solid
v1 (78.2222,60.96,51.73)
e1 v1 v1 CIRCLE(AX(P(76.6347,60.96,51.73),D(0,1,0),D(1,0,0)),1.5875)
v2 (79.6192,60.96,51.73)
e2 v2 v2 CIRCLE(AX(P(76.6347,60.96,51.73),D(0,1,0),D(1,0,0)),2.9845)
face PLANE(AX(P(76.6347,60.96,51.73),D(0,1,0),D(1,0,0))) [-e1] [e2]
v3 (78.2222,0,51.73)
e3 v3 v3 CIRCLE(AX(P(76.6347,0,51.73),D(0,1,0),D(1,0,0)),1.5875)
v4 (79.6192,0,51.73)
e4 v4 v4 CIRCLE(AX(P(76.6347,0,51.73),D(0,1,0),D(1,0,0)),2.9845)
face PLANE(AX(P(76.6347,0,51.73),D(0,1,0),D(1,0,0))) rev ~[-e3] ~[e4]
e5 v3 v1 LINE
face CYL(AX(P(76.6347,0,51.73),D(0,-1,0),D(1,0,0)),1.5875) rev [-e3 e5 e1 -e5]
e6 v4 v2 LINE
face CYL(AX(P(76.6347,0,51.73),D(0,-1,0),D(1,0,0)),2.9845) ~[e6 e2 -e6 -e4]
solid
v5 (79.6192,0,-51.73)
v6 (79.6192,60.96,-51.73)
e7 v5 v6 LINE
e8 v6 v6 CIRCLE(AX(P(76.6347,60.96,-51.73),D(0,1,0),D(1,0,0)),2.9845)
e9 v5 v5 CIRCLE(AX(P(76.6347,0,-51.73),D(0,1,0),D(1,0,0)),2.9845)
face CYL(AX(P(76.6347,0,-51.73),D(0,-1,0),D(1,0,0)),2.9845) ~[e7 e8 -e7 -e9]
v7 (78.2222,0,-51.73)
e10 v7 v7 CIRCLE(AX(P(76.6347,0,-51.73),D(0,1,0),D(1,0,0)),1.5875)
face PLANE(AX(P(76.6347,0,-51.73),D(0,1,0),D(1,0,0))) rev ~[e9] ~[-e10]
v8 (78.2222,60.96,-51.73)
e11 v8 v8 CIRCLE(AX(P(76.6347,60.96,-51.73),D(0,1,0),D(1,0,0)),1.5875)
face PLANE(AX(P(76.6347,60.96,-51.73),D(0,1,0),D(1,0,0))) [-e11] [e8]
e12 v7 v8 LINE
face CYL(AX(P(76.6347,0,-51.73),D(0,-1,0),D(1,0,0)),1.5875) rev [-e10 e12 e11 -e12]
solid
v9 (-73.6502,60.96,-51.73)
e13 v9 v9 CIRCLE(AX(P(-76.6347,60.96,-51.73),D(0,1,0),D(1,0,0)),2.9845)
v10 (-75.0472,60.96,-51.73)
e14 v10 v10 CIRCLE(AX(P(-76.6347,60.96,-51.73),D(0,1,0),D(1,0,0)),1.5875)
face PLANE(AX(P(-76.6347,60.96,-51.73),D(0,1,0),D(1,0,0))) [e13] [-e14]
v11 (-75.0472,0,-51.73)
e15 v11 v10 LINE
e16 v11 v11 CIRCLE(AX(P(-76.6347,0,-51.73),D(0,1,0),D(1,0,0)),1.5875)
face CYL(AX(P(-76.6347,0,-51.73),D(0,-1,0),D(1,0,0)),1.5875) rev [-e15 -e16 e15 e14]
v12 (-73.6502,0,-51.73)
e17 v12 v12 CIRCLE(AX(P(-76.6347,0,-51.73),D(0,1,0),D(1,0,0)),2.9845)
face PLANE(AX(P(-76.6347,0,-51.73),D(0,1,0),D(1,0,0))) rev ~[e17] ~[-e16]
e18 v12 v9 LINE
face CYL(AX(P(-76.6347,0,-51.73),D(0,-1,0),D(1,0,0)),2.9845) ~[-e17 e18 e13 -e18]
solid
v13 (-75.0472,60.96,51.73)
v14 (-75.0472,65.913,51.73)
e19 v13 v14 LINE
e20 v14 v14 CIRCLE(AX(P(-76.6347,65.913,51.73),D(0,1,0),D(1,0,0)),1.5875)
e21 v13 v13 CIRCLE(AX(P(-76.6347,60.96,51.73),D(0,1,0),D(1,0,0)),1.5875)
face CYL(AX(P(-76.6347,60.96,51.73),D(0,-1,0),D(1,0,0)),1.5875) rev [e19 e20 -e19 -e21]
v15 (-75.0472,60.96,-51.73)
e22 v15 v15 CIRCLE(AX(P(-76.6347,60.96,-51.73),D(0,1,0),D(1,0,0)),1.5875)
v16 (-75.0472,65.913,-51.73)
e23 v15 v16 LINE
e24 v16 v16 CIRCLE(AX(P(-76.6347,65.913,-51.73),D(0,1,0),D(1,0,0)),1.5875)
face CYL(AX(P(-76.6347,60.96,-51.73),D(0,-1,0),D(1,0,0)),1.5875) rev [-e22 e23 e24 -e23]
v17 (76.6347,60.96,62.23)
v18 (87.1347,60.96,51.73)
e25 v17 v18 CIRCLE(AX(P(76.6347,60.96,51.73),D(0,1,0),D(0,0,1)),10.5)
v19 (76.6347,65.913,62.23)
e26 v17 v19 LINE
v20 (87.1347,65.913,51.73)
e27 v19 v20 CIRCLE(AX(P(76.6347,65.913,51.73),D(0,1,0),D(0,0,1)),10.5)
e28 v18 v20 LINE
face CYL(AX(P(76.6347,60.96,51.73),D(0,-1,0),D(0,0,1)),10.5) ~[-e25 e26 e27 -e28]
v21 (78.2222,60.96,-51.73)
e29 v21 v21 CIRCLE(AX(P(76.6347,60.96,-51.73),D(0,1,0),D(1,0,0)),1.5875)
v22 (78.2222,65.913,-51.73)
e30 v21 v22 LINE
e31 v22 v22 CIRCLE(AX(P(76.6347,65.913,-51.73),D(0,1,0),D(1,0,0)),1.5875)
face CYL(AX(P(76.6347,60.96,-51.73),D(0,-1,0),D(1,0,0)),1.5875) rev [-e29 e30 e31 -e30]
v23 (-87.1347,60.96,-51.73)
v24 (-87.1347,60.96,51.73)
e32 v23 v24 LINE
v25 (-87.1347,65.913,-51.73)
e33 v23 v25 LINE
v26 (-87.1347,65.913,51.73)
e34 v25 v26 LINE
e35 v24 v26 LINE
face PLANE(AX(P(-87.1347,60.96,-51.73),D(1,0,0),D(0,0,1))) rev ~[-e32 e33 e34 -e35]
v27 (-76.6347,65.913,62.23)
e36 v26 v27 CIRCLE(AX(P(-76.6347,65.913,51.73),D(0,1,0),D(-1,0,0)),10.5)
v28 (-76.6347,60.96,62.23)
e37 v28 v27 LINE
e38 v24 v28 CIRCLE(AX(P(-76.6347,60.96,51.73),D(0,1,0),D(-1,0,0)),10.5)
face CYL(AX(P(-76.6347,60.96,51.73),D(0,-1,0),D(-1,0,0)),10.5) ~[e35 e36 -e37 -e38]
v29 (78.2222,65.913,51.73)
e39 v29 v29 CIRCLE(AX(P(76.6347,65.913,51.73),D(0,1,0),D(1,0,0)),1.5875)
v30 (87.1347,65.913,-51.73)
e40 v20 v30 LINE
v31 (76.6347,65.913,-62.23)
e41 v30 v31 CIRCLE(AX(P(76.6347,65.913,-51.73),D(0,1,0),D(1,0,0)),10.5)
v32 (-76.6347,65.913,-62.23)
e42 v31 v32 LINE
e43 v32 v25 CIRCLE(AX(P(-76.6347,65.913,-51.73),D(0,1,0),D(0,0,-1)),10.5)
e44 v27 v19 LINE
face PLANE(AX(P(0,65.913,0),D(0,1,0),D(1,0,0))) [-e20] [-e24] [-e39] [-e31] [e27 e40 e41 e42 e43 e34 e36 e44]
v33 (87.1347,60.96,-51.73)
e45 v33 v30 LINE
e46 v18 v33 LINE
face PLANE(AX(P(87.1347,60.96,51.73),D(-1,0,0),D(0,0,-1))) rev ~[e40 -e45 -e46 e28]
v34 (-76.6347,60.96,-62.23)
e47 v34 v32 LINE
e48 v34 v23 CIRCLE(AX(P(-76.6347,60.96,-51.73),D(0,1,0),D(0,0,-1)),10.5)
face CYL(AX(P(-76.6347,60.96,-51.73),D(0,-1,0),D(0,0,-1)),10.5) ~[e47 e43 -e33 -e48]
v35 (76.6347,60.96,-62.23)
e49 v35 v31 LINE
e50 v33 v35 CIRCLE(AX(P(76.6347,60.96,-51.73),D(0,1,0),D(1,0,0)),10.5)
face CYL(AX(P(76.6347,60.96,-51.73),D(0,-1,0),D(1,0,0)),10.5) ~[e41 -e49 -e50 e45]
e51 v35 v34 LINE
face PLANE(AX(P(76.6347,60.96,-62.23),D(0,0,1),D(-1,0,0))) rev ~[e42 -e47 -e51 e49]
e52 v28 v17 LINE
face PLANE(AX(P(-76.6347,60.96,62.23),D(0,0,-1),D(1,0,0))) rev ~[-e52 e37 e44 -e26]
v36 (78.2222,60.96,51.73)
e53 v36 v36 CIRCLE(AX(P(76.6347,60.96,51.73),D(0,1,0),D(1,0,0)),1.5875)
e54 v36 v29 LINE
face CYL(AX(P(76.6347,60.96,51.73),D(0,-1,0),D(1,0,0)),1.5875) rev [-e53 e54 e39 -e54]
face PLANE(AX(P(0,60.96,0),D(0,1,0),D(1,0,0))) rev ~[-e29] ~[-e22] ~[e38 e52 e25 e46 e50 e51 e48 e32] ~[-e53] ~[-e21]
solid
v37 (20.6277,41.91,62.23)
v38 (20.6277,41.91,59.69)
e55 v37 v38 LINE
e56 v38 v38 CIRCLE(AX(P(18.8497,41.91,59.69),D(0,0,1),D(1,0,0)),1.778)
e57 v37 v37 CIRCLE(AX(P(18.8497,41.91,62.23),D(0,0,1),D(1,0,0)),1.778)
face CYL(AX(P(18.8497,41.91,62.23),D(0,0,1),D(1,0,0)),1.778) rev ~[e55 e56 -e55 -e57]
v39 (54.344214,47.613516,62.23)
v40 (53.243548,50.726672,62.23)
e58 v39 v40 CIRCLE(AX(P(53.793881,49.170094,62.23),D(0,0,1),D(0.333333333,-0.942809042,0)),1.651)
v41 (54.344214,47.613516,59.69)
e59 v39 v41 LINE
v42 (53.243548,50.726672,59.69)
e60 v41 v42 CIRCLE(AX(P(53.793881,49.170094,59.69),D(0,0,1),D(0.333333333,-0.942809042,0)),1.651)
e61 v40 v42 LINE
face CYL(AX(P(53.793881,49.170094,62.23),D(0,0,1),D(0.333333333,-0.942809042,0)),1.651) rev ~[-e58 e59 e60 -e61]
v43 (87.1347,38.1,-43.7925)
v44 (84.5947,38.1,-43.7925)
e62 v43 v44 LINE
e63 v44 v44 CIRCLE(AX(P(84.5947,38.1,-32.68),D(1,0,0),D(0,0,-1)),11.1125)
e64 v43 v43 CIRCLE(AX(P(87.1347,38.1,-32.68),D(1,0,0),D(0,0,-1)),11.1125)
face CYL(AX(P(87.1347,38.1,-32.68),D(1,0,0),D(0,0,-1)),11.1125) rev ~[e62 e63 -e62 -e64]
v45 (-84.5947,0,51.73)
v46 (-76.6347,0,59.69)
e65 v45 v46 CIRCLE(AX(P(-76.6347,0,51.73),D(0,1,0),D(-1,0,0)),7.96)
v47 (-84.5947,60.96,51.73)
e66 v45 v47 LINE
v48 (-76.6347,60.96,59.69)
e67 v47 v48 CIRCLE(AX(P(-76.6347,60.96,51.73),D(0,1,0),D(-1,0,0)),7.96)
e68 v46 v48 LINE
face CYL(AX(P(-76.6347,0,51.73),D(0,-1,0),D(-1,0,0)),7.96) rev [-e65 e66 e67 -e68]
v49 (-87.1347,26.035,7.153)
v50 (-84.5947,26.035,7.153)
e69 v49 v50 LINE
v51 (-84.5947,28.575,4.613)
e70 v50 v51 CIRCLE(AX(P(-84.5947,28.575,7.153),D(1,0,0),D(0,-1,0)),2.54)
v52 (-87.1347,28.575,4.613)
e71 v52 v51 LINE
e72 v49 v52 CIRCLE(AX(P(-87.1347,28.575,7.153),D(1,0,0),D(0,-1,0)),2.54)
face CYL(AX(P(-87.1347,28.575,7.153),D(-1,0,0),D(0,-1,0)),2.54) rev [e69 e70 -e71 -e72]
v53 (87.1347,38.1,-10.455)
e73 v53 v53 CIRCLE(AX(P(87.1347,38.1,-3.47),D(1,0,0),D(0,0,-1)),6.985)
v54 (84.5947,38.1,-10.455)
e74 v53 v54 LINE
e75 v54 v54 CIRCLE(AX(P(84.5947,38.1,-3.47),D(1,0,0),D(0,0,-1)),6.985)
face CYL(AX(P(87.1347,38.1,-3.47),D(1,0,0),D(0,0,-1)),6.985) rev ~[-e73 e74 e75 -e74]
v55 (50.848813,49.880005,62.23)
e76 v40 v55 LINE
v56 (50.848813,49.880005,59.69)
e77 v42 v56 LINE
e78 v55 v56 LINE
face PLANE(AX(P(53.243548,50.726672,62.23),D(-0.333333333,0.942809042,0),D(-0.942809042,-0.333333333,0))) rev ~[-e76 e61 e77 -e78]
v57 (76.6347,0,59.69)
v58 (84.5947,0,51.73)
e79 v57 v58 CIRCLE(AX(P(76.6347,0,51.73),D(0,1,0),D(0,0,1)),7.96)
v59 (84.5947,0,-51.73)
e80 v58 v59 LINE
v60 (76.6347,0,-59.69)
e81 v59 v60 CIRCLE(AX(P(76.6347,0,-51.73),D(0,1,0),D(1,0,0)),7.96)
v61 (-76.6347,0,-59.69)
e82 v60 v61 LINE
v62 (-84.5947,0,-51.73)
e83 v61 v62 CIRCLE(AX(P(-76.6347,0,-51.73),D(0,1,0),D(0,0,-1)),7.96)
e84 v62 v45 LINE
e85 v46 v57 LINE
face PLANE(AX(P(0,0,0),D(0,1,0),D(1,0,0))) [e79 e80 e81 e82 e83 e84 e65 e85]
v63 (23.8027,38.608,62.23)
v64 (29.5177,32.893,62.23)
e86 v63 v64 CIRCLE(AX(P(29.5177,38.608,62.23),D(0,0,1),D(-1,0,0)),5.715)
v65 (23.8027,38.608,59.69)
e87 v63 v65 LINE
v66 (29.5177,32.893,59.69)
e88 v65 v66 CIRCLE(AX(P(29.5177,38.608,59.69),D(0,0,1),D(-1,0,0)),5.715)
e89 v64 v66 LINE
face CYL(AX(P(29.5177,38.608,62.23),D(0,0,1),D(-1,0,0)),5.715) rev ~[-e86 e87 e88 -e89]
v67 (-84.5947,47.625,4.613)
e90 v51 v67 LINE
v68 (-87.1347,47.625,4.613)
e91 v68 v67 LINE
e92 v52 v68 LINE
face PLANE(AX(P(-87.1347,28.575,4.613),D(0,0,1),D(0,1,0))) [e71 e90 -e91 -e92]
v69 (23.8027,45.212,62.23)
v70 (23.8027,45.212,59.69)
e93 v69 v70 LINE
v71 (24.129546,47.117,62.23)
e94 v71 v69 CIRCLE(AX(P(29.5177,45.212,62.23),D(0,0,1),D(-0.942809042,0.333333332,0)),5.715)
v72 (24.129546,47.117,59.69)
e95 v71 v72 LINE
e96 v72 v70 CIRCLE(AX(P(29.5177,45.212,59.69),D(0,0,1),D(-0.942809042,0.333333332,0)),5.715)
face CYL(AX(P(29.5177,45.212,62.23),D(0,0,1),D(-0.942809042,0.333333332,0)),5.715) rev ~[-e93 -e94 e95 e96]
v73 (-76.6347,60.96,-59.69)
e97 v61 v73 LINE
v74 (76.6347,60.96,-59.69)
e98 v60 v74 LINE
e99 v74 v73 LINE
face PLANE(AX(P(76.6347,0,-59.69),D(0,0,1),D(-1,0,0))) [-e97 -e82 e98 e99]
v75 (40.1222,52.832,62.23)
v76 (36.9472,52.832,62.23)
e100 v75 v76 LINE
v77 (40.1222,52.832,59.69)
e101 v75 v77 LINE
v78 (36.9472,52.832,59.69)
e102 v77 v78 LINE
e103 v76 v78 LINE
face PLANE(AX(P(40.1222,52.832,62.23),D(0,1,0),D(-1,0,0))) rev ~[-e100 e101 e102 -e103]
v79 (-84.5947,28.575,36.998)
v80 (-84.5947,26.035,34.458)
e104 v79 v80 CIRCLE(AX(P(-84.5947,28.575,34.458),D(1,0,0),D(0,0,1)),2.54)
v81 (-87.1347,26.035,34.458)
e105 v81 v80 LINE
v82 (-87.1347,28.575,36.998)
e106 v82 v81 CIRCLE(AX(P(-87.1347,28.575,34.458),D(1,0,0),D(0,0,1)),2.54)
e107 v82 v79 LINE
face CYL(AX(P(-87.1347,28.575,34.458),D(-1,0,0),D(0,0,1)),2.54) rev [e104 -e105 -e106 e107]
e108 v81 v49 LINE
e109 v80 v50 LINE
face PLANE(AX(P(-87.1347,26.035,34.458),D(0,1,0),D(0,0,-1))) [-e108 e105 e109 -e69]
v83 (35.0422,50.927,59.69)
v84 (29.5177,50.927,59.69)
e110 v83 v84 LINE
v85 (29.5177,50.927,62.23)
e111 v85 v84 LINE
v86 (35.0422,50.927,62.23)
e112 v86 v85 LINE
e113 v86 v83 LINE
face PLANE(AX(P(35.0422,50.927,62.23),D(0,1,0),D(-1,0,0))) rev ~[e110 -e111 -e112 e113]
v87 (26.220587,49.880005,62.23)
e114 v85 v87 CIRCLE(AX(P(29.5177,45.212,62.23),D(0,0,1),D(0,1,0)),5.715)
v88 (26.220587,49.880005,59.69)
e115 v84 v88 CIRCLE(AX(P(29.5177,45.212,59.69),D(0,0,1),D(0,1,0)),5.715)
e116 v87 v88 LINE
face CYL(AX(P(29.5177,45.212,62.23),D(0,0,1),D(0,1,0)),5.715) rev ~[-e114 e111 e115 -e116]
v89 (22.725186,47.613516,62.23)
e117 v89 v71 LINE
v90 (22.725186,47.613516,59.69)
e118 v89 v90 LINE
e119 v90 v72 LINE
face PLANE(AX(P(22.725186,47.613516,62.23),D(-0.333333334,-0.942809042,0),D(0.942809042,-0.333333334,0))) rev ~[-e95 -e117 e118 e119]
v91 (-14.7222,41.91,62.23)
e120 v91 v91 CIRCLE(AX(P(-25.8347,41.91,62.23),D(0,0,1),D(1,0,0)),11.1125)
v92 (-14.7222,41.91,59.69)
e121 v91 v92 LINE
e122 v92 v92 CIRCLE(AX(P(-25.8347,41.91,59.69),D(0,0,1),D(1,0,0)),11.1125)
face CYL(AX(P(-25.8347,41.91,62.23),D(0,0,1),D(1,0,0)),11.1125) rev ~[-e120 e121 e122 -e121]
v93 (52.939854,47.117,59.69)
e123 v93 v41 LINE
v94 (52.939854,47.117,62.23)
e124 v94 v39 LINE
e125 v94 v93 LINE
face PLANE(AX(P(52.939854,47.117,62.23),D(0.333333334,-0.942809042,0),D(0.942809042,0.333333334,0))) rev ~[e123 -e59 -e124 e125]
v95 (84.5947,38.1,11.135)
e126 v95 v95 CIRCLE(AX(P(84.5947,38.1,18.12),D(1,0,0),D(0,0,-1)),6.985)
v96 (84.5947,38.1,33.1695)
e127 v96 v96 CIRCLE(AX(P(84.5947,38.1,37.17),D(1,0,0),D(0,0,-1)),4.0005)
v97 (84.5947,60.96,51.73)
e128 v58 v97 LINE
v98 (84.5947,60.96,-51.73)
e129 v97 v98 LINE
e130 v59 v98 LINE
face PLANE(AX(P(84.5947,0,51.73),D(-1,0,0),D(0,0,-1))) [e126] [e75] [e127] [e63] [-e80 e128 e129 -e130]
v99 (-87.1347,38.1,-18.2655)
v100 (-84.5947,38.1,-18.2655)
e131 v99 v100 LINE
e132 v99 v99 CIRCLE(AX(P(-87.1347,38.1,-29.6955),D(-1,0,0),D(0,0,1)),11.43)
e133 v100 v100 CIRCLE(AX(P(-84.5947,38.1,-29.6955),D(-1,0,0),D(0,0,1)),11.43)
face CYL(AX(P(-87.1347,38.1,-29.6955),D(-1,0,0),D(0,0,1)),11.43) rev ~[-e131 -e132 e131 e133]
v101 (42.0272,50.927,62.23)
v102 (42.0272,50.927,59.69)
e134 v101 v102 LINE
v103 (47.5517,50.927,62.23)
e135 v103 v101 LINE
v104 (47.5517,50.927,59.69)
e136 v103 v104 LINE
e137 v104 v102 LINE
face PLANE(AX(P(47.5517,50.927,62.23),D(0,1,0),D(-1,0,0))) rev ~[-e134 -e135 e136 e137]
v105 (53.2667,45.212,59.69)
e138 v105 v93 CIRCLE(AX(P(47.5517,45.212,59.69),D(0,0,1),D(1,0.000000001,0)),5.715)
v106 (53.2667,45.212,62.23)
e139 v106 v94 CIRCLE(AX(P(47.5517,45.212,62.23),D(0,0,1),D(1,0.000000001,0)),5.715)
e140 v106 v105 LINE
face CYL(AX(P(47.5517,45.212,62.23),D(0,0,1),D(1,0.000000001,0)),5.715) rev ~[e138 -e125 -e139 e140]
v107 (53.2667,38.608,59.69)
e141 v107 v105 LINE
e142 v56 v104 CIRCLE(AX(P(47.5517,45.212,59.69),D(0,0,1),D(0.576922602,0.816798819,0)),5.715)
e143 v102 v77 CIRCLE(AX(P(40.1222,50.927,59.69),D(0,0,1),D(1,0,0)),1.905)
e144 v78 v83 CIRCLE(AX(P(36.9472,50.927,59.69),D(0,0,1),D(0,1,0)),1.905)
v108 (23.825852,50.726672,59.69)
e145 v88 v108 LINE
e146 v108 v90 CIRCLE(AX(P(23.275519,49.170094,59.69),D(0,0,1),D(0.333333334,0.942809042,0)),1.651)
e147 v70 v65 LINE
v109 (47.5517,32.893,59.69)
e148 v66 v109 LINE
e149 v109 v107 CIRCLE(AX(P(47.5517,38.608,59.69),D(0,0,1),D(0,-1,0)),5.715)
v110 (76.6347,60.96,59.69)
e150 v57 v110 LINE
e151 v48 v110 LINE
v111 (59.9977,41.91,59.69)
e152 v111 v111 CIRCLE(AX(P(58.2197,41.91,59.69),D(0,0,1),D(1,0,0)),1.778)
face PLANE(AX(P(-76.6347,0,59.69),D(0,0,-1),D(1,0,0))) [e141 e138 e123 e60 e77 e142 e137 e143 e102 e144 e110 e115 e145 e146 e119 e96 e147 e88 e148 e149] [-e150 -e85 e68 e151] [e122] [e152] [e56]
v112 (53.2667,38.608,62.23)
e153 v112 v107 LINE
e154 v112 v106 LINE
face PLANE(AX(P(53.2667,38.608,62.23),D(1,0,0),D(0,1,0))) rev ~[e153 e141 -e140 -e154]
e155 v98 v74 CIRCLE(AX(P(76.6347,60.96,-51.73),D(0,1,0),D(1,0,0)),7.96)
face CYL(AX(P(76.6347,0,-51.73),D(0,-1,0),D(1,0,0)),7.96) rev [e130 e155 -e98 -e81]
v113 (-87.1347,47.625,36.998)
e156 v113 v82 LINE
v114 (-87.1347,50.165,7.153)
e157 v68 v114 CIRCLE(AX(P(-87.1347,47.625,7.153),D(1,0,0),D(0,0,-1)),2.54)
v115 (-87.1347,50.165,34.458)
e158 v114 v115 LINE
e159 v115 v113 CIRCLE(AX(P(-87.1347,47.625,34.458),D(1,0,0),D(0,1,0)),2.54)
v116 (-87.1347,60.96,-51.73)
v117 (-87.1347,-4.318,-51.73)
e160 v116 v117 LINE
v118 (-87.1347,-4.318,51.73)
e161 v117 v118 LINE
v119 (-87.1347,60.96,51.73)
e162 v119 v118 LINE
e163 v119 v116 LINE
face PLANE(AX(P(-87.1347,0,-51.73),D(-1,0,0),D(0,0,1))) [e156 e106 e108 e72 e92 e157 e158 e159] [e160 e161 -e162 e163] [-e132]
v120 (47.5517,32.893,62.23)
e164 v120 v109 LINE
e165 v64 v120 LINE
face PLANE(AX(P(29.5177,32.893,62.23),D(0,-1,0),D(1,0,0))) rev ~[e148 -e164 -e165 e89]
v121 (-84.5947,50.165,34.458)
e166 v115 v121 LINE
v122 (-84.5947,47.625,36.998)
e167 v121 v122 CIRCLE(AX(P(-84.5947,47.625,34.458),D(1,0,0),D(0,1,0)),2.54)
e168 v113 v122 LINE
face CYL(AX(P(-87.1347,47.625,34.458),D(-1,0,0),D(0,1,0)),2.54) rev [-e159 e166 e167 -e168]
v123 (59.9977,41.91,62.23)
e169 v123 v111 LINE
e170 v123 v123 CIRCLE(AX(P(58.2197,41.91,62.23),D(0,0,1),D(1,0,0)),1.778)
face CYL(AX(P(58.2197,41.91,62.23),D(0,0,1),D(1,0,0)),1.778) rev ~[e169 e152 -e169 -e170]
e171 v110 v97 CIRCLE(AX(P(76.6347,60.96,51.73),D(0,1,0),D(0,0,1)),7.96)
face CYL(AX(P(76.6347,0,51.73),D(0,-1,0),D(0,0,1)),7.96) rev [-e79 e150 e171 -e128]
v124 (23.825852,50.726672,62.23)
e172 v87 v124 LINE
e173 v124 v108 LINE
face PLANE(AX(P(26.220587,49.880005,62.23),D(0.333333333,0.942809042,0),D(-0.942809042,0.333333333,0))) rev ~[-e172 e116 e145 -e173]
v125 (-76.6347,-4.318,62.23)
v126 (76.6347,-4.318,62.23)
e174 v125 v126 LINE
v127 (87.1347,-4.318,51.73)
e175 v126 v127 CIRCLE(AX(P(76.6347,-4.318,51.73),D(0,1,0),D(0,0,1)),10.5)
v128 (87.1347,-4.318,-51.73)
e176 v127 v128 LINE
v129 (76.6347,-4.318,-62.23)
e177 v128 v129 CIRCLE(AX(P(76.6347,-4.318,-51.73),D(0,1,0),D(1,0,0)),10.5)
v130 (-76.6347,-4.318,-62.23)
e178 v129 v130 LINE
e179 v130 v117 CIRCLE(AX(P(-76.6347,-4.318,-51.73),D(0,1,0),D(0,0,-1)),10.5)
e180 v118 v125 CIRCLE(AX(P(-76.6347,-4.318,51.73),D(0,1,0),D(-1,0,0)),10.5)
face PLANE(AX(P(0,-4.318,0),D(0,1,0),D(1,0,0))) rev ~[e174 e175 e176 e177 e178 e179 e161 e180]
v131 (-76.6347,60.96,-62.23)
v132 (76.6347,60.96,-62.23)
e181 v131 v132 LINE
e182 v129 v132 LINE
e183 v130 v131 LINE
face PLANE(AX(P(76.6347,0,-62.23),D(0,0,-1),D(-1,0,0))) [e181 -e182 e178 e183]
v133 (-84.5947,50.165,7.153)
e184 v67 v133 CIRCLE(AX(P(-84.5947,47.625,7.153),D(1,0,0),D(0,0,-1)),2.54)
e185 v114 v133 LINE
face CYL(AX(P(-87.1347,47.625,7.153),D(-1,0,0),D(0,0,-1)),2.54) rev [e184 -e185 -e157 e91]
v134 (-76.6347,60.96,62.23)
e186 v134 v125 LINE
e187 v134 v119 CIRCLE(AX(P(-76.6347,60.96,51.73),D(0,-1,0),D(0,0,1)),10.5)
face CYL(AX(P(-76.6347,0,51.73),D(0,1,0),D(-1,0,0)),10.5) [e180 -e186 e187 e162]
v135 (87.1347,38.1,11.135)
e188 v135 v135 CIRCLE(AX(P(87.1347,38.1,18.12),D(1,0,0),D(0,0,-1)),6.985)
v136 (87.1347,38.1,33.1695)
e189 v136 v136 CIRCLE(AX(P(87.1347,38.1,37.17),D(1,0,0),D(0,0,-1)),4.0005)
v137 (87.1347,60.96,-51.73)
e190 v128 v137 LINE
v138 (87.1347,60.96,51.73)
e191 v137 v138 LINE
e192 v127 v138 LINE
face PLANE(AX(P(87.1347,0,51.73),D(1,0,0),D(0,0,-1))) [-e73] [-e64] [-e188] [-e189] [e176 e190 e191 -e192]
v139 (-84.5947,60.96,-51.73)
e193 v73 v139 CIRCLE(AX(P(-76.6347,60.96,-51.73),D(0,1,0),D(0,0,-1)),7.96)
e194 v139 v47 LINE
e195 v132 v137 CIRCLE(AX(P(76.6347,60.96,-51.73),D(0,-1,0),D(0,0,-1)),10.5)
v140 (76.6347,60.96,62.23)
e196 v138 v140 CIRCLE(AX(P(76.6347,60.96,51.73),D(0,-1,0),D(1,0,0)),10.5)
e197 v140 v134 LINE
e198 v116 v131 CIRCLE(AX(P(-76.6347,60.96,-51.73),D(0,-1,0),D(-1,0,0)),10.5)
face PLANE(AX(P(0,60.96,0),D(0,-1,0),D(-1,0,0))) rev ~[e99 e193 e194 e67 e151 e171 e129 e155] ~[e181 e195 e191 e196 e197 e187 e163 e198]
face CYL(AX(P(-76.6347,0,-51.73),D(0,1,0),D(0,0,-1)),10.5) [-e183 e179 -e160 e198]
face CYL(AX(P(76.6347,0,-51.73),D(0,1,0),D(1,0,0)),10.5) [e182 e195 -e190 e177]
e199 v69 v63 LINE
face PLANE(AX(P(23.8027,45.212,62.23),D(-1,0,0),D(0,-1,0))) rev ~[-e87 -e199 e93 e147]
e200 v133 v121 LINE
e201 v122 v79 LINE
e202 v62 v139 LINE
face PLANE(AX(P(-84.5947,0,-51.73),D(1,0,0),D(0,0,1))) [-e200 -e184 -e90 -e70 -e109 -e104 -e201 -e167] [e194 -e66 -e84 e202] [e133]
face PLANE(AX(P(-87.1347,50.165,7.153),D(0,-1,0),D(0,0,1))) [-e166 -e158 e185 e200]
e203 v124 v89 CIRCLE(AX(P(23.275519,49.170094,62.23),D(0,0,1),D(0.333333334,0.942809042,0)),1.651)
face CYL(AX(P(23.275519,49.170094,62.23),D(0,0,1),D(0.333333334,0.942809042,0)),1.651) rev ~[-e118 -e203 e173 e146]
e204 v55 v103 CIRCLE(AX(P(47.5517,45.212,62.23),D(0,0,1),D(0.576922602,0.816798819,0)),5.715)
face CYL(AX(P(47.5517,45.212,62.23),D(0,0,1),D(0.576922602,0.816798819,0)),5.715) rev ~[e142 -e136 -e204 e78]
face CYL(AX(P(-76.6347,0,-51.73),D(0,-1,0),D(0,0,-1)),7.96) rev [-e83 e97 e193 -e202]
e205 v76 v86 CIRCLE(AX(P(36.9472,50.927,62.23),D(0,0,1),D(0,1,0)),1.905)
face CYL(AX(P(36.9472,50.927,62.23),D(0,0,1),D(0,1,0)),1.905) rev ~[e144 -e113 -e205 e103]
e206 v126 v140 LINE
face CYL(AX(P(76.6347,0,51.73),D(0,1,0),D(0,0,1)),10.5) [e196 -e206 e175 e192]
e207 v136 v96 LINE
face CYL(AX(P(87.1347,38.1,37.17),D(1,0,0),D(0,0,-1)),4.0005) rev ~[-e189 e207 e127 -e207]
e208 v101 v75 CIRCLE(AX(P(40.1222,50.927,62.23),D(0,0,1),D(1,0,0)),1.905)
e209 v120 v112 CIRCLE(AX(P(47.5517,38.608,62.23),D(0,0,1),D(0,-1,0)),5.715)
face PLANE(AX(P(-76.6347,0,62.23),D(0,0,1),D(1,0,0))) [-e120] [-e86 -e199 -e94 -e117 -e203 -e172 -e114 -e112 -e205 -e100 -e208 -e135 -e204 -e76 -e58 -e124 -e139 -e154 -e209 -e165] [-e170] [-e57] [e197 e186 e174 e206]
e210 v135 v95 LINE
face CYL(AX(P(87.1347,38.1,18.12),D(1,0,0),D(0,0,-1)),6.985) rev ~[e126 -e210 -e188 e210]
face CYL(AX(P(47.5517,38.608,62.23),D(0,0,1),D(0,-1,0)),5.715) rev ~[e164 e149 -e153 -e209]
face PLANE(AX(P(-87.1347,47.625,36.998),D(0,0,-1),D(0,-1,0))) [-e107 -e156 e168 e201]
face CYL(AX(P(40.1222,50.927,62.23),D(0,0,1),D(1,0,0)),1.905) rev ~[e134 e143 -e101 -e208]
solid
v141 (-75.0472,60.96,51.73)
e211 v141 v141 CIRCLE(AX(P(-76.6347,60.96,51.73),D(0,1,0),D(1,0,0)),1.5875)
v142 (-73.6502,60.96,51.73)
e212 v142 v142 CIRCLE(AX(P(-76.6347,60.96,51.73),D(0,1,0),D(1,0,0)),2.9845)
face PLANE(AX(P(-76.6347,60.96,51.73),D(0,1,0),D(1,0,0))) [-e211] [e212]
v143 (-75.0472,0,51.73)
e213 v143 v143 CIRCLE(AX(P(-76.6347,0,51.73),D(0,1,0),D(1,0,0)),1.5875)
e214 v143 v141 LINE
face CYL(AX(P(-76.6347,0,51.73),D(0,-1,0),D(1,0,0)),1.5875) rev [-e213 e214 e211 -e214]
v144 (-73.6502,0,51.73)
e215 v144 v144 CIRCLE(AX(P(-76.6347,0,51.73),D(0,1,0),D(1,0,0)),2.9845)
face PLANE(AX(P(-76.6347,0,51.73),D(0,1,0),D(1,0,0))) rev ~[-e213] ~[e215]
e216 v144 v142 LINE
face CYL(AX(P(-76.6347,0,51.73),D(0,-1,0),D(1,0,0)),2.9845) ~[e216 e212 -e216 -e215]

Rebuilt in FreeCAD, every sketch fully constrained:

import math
import FreeCAD as App
import Part
import Sketcher

V = App.Vector
Q = App.Units.Quantity

doc = App.newDocument("Part")
body = doc.addObject("PartDesign::Body", "Body")

# Sketch on XZ plane
sketch1 = body.newObject("Sketcher::SketchObject", "Sketch")
sketch1.AttachmentSupport = (doc.getObject("XZ_Plane"), [""])
sketch1.MapMode = "FlatFace"
sketch1.addGeometry(Part.LineSegment(V(77, -62, 0), V(-77, -62, 0)), False)
sketch1.addGeometry(Part.ArcOfCircle(Part.Circle(V(-77, -52, 0), V(0, 0, 1), 11), math.radians(-180), math.radians(-90)), False)
sketch1.addGeometry(Part.LineSegment(V(-87, -52, 0), V(-87, 52, 0)), False)
sketch1.addGeometry(Part.ArcOfCircle(Part.Circle(V(-77, 52, 0), V(0, 0, 1), 11), math.radians(90), math.radians(180)), False)
sketch1.addGeometry(Part.LineSegment(V(-77, 62, 0), V(77, 62, 0)), False)
sketch1.addGeometry(Part.ArcOfCircle(Part.Circle(V(77, 52, 0), V(0, 0, 1), 11), math.radians(0), math.radians(90)), False)
sketch1.addGeometry(Part.LineSegment(V(87, 52, 0), V(87, -52, 0)), False)
sketch1.addGeometry(Part.ArcOfCircle(Part.Circle(V(77, -52, 0), V(0, 0, 1), 11), math.radians(-90), math.radians(0)), False)
sketch1.addGeometry(Part.LineSegment(V(-77, -60, 0), V(77, -60, 0)), False)
sketch1.addGeometry(Part.ArcOfCircle(Part.Circle(V(77, -52, 0), V(0, 0, 1), 8), math.radians(-90), math.radians(0)), False)
sketch1.addGeometry(Part.LineSegment(V(85, -52, 0), V(85, 52, 0)), False)
sketch1.addGeometry(Part.ArcOfCircle(Part.Circle(V(77, 52, 0), V(0, 0, 1), 8), math.radians(0), math.radians(90)), False)
sketch1.addGeometry(Part.LineSegment(V(77, 60, 0), V(-77, 60, 0)), False)
sketch1.addGeometry(Part.ArcOfCircle(Part.Circle(V(-77, 52, 0), V(0, 0, 1), 8), math.radians(90), math.radians(180)), False)
sketch1.addGeometry(Part.LineSegment(V(-85, 52, 0), V(-85, -52, 0)), False)
sketch1.addGeometry(Part.ArcOfCircle(Part.Circle(V(-77, -52, 0), V(0, 0, 1), 8), math.radians(-180), math.radians(-90)), False)
sketch1.addConstraint(Sketcher.Constraint("Tangent", 0, 2, 1, 2))
sketch1.addConstraint(Sketcher.Constraint("Tangent", 1, 1, 2, 1))
sketch1.addConstraint(Sketcher.Constraint("Tangent", 2, 2, 3, 2))
sketch1.addConstraint(Sketcher.Constraint("Tangent", 3, 1, 4, 1))
sketch1.addConstraint(Sketcher.Constraint("Tangent", 4, 2, 5, 2))
sketch1.addConstraint(Sketcher.Constraint("Tangent", 5, 1, 6, 1))
sketch1.addConstraint(Sketcher.Constraint("Tangent", 6, 2, 7, 2))
sketch1.addConstraint(Sketcher.Constraint("Tangent", 7, 1, 0, 1))
sketch1.addConstraint(Sketcher.Constraint("Tangent", 8, 2, 9, 1))
sketch1.addConstraint(Sketcher.Constraint("Tangent", 9, 2, 10, 1))
sketch1.addConstraint(Sketcher.Constraint("Tangent", 10, 2, 11, 1))
sketch1.addConstraint(Sketcher.Constraint("Tangent", 11, 2, 12, 1))
sketch1.addConstraint(Sketcher.Constraint("Tangent", 12, 2, 13, 1))
sketch1.addConstraint(Sketcher.Constraint("Tangent", 13, 2, 14, 1))
sketch1.addConstraint(Sketcher.Constraint("Tangent", 14, 2, 15, 1))
sketch1.addConstraint(Sketcher.Constraint("Tangent", 15, 2, 8, 1))
sketch1.addConstraint(Sketcher.Constraint("Horizontal", 0))
sketch1.addConstraint(Sketcher.Constraint("Vertical", 2))
sketch1.addConstraint(Sketcher.Constraint("Horizontal", 4))
sketch1.addConstraint(Sketcher.Constraint("Vertical", 6))
sketch1.addConstraint(Sketcher.Constraint("Horizontal", 8))
sketch1.addConstraint(Sketcher.Constraint("Vertical", 10))
sketch1.addConstraint(Sketcher.Constraint("Horizontal", 12))
sketch1.addConstraint(Sketcher.Constraint("Vertical", 14))
sketch1.addConstraint(Sketcher.Constraint("Coincident", 9, 3, 7, 3))
sketch1.addConstraint(Sketcher.Constraint("Coincident", 11, 3, 5, 3))
sketch1.addConstraint(Sketcher.Constraint("Coincident", 13, 3, 3, 3))
sketch1.addConstraint(Sketcher.Constraint("Equal", 1, 3))
sketch1.addConstraint(Sketcher.Constraint("Equal", 3, 5))
sketch1.addConstraint(Sketcher.Constraint("Equal", 5, 7))
sketch1.addConstraint(Sketcher.Constraint("Equal", 13, 15))
sketch1.addConstraint(Sketcher.Constraint("Symmetric", 1, 3, 5, 3, -1, 1))
sketch1.addConstraint(Sketcher.Constraint("DistanceY", 7, 1, 8, 2, Q("0.1 in")))
sketch1.addConstraint(Sketcher.Constraint("DistanceY", 0, 2, -1, 1, Q("2.45 in")))
sketch1.addConstraint(Sketcher.Constraint("Radius", 1, 10.5))
sketch1.addConstraint(Sketcher.Constraint("DistanceX", 0, 2, 0, 1, 153.2694))
pad1 = body.newObject("PartDesign::Pad", "Pad")
pad1.Profile = sketch1
pad1.Length = Q("2.4 in")
pad1.Reversed = True

# Sketch on XZ plane
sketch2 = body.newObject("Sketcher::SketchObject", "Sketch001")
sketch2.AttachmentSupport = (doc.getObject("XZ_Plane"), [""])
sketch2.MapMode = "FlatFace"
sketch2.addGeometry(Part.LineSegment(V(-77, 62, 0), V(77, 62, 0)), False)
sketch2.addGeometry(Part.ArcOfCircle(Part.Circle(V(77, 52, 0), V(0, 0, 1), 11), math.radians(0), math.radians(90)), False)
sketch2.addGeometry(Part.LineSegment(V(87, 52, 0), V(87, -52, 0)), False)
sketch2.addGeometry(Part.ArcOfCircle(Part.Circle(V(77, -52, 0), V(0, 0, 1), 11), math.radians(-90), math.radians(0)), False)
sketch2.addGeometry(Part.LineSegment(V(77, -62, 0), V(-77, -62, 0)), False)
sketch2.addGeometry(Part.ArcOfCircle(Part.Circle(V(-77, -52, 0), V(0, 0, 1), 11), math.radians(-180), math.radians(-90)), False)
sketch2.addGeometry(Part.LineSegment(V(-87, -52, 0), V(-87, 52, 0)), False)
sketch2.addGeometry(Part.ArcOfCircle(Part.Circle(V(-77, 52, 0), V(0, 0, 1), 11), math.radians(90), math.radians(180)), False)
sketch2.addConstraint(Sketcher.Constraint("Tangent", 0, 2, 1, 2))
sketch2.addConstraint(Sketcher.Constraint("Tangent", 1, 1, 2, 1))
sketch2.addConstraint(Sketcher.Constraint("Tangent", 2, 2, 3, 2))
sketch2.addConstraint(Sketcher.Constraint("Tangent", 3, 1, 4, 1))
sketch2.addConstraint(Sketcher.Constraint("Tangent", 4, 2, 5, 2))
sketch2.addConstraint(Sketcher.Constraint("Tangent", 5, 1, 6, 1))
sketch2.addConstraint(Sketcher.Constraint("Tangent", 6, 2, 7, 2))
sketch2.addConstraint(Sketcher.Constraint("Tangent", 7, 1, 0, 1))
sketch2.addConstraint(Sketcher.Constraint("Horizontal", 0))
sketch2.addConstraint(Sketcher.Constraint("Vertical", 2))
sketch2.addConstraint(Sketcher.Constraint("Horizontal", 4))
sketch2.addConstraint(Sketcher.Constraint("Vertical", 6))
sketch2.addConstraint(Sketcher.Constraint("Equal", 1, 3))
sketch2.addConstraint(Sketcher.Constraint("Equal", 3, 5))
sketch2.addConstraint(Sketcher.Constraint("Equal", 5, 7))
sketch2.addConstraint(Sketcher.Constraint("Symmetric", 1, 3, 5, 3, -1, 1))
sketch2.addConstraint(Sketcher.Constraint("DistanceY", 3, 1, 0, 2, Q("4.9 in")))
sketch2.addConstraint(Sketcher.Constraint("Radius", 1, 10.5))
sketch2.addConstraint(Sketcher.Constraint("DistanceX", 0, 1, 0, 2, 153.2694))
pad2 = body.newObject("PartDesign::Pad", "Pad001")
pad2.Profile = sketch2
pad2.Length = Q("0.17 in")

# Sketch on YZ plane
sketch3 = body.newObject("Sketcher::SketchObject", "Sketch002")
sketch3.AttachmentSupport = (doc.getObject("YZ_Plane"), [""])
sketch3.MapMode = "FlatFace"
sketch3.AttachmentOffset = App.Placement(V(0, 0, -3.4305 * 25.4), App.Rotation())
sketch3.addGeometry(Part.Circle(V(38.1, -29.7, 0), V(0, 0, 1), 11.4), False)
sketch3.addGeometry(Part.LineSegment(V(50.2, 34.5, 0), V(50.2, 7.2, 0)), False)
sketch3.addGeometry(Part.ArcOfCircle(Part.Circle(V(47.6, 7.2, 0), V(0, 0, 1), 2.5), math.radians(-90), math.radians(0)), False)
sketch3.addGeometry(Part.LineSegment(V(47.6, 4.6, 0), V(28.6, 4.6, 0)), False)
sketch3.addGeometry(Part.ArcOfCircle(Part.Circle(V(28.6, 7.2, 0), V(0, 0, 1), 2.5), math.radians(-180), math.radians(-90)), False)
sketch3.addGeometry(Part.LineSegment(V(26, 7.2, 0), V(26, 34.5, 0)), False)
sketch3.addGeometry(Part.ArcOfCircle(Part.Circle(V(28.6, 34.5, 0), V(0, 0, 1), 2.5), math.radians(90), math.radians(180)), False)
sketch3.addGeometry(Part.LineSegment(V(28.6, 37, 0), V(47.6, 37, 0)), False)
sketch3.addGeometry(Part.ArcOfCircle(Part.Circle(V(47.6, 34.5, 0), V(0, 0, 1), 2.5), math.radians(0), math.radians(90)), False)
sketch3.addConstraint(Sketcher.Constraint("Tangent", 1, 2, 2, 2))
sketch3.addConstraint(Sketcher.Constraint("Tangent", 2, 1, 3, 1))
sketch3.addConstraint(Sketcher.Constraint("Tangent", 3, 2, 4, 2))
sketch3.addConstraint(Sketcher.Constraint("Tangent", 4, 1, 5, 1))
sketch3.addConstraint(Sketcher.Constraint("Tangent", 5, 2, 6, 2))
sketch3.addConstraint(Sketcher.Constraint("Tangent", 6, 1, 7, 1))
sketch3.addConstraint(Sketcher.Constraint("Tangent", 7, 2, 8, 2))
sketch3.addConstraint(Sketcher.Constraint("Tangent", 8, 1, 1, 1))
sketch3.addConstraint(Sketcher.Constraint("Vertical", 1))
sketch3.addConstraint(Sketcher.Constraint("Horizontal", 3))
sketch3.addConstraint(Sketcher.Constraint("Vertical", 5))
sketch3.addConstraint(Sketcher.Constraint("Horizontal", 7))
sketch3.addConstraint(Sketcher.Constraint("Equal", 2, 4))
sketch3.addConstraint(Sketcher.Constraint("Equal", 4, 6))
sketch3.addConstraint(Sketcher.Constraint("Equal", 6, 8))
sketch3.addConstraint(Sketcher.Constraint("Diameter", 0, Q("0.9 in")))
sketch3.addConstraint(Sketcher.Constraint("Radius", 2, Q("0.1 in")))
sketch3.addConstraint(Sketcher.Constraint("DistanceX", 3, 2, 3, 1, Q("0.75 in")))
sketch3.addConstraint(Sketcher.Constraint("DistanceX", -1, 1, 0, 3, Q("1.5 in")))
sketch3.addConstraint(Sketcher.Constraint("DistanceY", 1, 2, 1, 1, Q("1.075 in")))
sketch3.addConstraint(Sketcher.Constraint("DistanceX", -1, 1, 2, 3, Q("1.875 in")))
sketch3.addConstraint(Sketcher.Constraint("DistanceY", 0, 3, -1, 1, 29.6955))
sketch3.addConstraint(Sketcher.Constraint("DistanceY", -1, 1, 2, 3, 7.153))
pocket1 = body.newObject("PartDesign::Pocket", "Pocket")
pocket1.Profile = sketch3
pocket1.Length = Q("0.1 in")
pocket1.Reversed = True

# Sketch on XY plane
sketch4 = body.newObject("Sketcher::SketchObject", "Sketch003")
sketch4.AttachmentSupport = (doc.getObject("XY_Plane"), [""])
sketch4.MapMode = "FlatFace"
sketch4.AttachmentOffset = App.Placement(V(0, 0, 2.45 * 25.4), App.Rotation())
sketch4.addGeometry(Part.Circle(V(-25.8, 41.9, 0), V(0, 0, 1), 11.1), False)
sketch4.addGeometry(Part.Circle(V(18.8, 41.9, 0), V(0, 0, 1), 1.8), False)
sketch4.addGeometry(Part.Circle(V(58.2, 41.9, 0), V(0, 0, 1), 1.8), False)
sketch4.addGeometry(Part.LineSegment(V(23.8, 45.2, 0), V(23.8, 38.6, 0)), False)
sketch4.addGeometry(Part.ArcOfCircle(Part.Circle(V(29.5, 38.6, 0), V(0, 0, 1), 5.7), math.radians(-180), math.radians(-90)), False)
sketch4.addGeometry(Part.LineSegment(V(29.5, 32.9, 0), V(47.6, 32.9, 0)), False)
sketch4.addGeometry(Part.ArcOfCircle(Part.Circle(V(47.6, 38.6, 0), V(0, 0, 1), 5.7), math.radians(-90), math.radians(0)), False)
sketch4.addGeometry(Part.LineSegment(V(53.3, 38.6, 0), V(53.3, 45.2, 0)), False)
sketch4.addGeometry(Part.ArcOfCircle(Part.Circle(V(47.6, 45.2, 0), V(0, 0, 1), 5.7), math.radians(0), math.radians(19.47)), False)
sketch4.addGeometry(Part.LineSegment(V(52.9, 47.1, 0), V(54.3, 47.6, 0)), False)
sketch4.addGeometry(Part.ArcOfCircle(Part.Circle(V(53.8, 49.2, 0), V(0, 0, 1), 1.7), math.radians(-71), math.radians(109)), False)
sketch4.addGeometry(Part.LineSegment(V(53.2, 50.7, 0), V(50.8, 49.9, 0)), False)
sketch4.addGeometry(Part.ArcOfCircle(Part.Circle(V(47.6, 45.2, 0), V(0, 0, 1), 5.7), math.radians(55), math.radians(90)), False)
sketch4.addGeometry(Part.LineSegment(V(47.6, 50.9, 0), V(42, 50.9, 0)), False)
sketch4.addGeometry(Part.ArcOfCircle(Part.Circle(V(40.1, 50.9, 0), V(0, 0, 1), 1.9), math.radians(0), math.radians(90)), False)
sketch4.addGeometry(Part.LineSegment(V(40.1, 52.8, 0), V(36.9, 52.8, 0)), False)
sketch4.addGeometry(Part.ArcOfCircle(Part.Circle(V(36.9, 50.9, 0), V(0, 0, 1), 1.9), math.radians(90), math.radians(180)), False)
sketch4.addGeometry(Part.LineSegment(V(35, 50.9, 0), V(29.5, 50.9, 0)), False)
sketch4.addGeometry(Part.ArcOfCircle(Part.Circle(V(29.5, 45.2, 0), V(0, 0, 1), 5.7), math.radians(90), math.radians(125)), False)
sketch4.addGeometry(Part.LineSegment(V(26.2, 49.9, 0), V(23.8, 50.7, 0)), False)
sketch4.addGeometry(Part.ArcOfCircle(Part.Circle(V(23.3, 49.2, 0), V(0, 0, 1), 1.7), math.radians(71), math.radians(251)), False)
sketch4.addGeometry(Part.LineSegment(V(22.7, 47.6, 0), V(24.1, 47.1, 0)), False)
sketch4.addGeometry(Part.ArcOfCircle(Part.Circle(V(29.5, 45.2, 0), V(0, 0, 1), 5.7), math.radians(160.53), math.radians(180)), False)
sketch4.addConstraint(Sketcher.Constraint("Tangent", 3, 2, 4, 1))
sketch4.addConstraint(Sketcher.Constraint("Tangent", 4, 2, 5, 1))
sketch4.addConstraint(Sketcher.Constraint("Tangent", 5, 2, 6, 1))
sketch4.addConstraint(Sketcher.Constraint("Tangent", 6, 2, 7, 1))
sketch4.addConstraint(Sketcher.Constraint("Tangent", 7, 2, 8, 1))
sketch4.addConstraint(Sketcher.Constraint("Coincident", 8, 2, 9, 1))
sketch4.addConstraint(Sketcher.Constraint("Tangent", 9, 2, 10, 1))
sketch4.addConstraint(Sketcher.Constraint("Tangent", 10, 2, 11, 1))
sketch4.addConstraint(Sketcher.Constraint("Coincident", 11, 2, 12, 1))
sketch4.addConstraint(Sketcher.Constraint("Tangent", 12, 2, 13, 1))
sketch4.addConstraint(Sketcher.Constraint("Coincident", 13, 2, 14, 1))
sketch4.addConstraint(Sketcher.Constraint("Tangent", 14, 2, 15, 1))
sketch4.addConstraint(Sketcher.Constraint("Tangent", 15, 2, 16, 1))
sketch4.addConstraint(Sketcher.Constraint("Coincident", 16, 2, 17, 1))
sketch4.addConstraint(Sketcher.Constraint("Tangent", 17, 2, 18, 1))
sketch4.addConstraint(Sketcher.Constraint("Coincident", 18, 2, 19, 1))
sketch4.addConstraint(Sketcher.Constraint("Tangent", 19, 2, 20, 1))
sketch4.addConstraint(Sketcher.Constraint("Tangent", 20, 2, 21, 1))
sketch4.addConstraint(Sketcher.Constraint("Coincident", 21, 2, 22, 1))
sketch4.addConstraint(Sketcher.Constraint("Tangent", 22, 2, 3, 1))
sketch4.addConstraint(Sketcher.Constraint("Vertical", 3))
sketch4.addConstraint(Sketcher.Constraint("Horizontal", 5))
sketch4.addConstraint(Sketcher.Constraint("Vertical", 7))
sketch4.addConstraint(Sketcher.Constraint("Horizontal", 13))
sketch4.addConstraint(Sketcher.Constraint("Horizontal", 15))
sketch4.addConstraint(Sketcher.Constraint("Horizontal", 17))
sketch4.addConstraint(Sketcher.Constraint("Coincident", 12, 3, 8, 3))
sketch4.addConstraint(Sketcher.Constraint("Coincident", 22, 3, 18, 3))
sketch4.addConstraint(Sketcher.Constraint("Equal", 1, 2))
sketch4.addConstraint(Sketcher.Constraint("Equal", 4, 6))
sketch4.addConstraint(Sketcher.Constraint("Equal", 6, 8))
sketch4.addConstraint(Sketcher.Constraint("Equal", 8, 12))
sketch4.addConstraint(Sketcher.Constraint("Equal", 14, 16))
sketch4.addConstraint(Sketcher.Constraint("Equal", 12, 18))
sketch4.addConstraint(Sketcher.Constraint("Equal", 10, 20))
sketch4.addConstraint(Sketcher.Constraint("Equal", 18, 22))
sketch4.addConstraint(Sketcher.Constraint("Parallel", 9, 11))
sketch4.addConstraint(Sketcher.Constraint("Parallel", 19, 21))
sketch4.addConstraint(Sketcher.Constraint("Horizontal", 0, 3, 1, 3))
sketch4.addConstraint(Sketcher.Constraint("Horizontal", 1, 3, 2, 3))
sketch4.addConstraint(Sketcher.Constraint("Horizontal", 12, 3, 18, 3))
sketch4.addConstraint(Sketcher.Constraint("Horizontal", 10, 3, 20, 3))
sketch4.addConstraint(Sketcher.Constraint("Horizontal", 16, 3, 12, 2))
sketch4.addConstraint(Sketcher.Constraint("Horizontal", 11, 2, 18, 2))
sketch4.addConstraint(Sketcher.Constraint("Horizontal", 10, 2, 19, 2))
sketch4.addConstraint(Sketcher.Constraint("Equal", 13, 17))
sketch4.addConstraint(Sketcher.Constraint("Diameter", 1, Q("0.14 in")))
sketch4.addConstraint(Sketcher.Constraint("Diameter", 0, Q("0.875 in")))
sketch4.addConstraint(Sketcher.Constraint("Radius", 4, Q("0.225 in")))
sketch4.addConstraint(Sketcher.Constraint("Radius", 10, Q("0.065 in")))
sketch4.addConstraint(Sketcher.Constraint("Radius", 14, Q("0.075 in")))
sketch4.addConstraint(Sketcher.Constraint("Distance", 11, Q("0.1 in")))
sketch4.addConstraint(Sketcher.Constraint("DistanceX", 5, 1, 5, 2, Q("0.71 in")))
sketch4.addConstraint(Sketcher.Constraint("DistanceY", 3, 2, 3, 1, Q("0.26 in")))
sketch4.addConstraint(Sketcher.Constraint("DistanceX", 16, 3, 13, 2, Q("0.2 in")))
sketch4.addConstraint(Sketcher.Constraint("DistanceY", -1, 1, 0, 3, Q("1.65 in")))
sketch4.addConstraint(Sketcher.Constraint("DistanceY", -1, 1, 4, 3, Q("1.52 in")))
sketch4.addConstraint(Sketcher.Constraint("DistanceX", 1, 3, 2, 3, Q("1.55 in")))
sketch4.addConstraint(Sketcher.Constraint("DistanceX", 1, 3, 4, 3, Q("0.42 in")))
sketch4.addConstraint(Sketcher.Constraint("DistanceY", -1, 1, 8, 2, Q("1.855 in")))
sketch4.addConstraint(Sketcher.Constraint("DistanceX", 0, 3, -1, 1, 25.8347))
sketch4.addConstraint(Sketcher.Constraint("DistanceX", -1, 1, 1, 3, 18.8497))
sketch4.addConstraint(Sketcher.Constraint("DistanceX", 11, 2, 9, 2, 3.495402))
pocket2 = body.newObject("PartDesign::Pocket", "Pocket001")
pocket2.Profile = sketch4
pocket2.Length = Q("0.1 in")

# Sketch on YZ plane
sketch5 = body.newObject("Sketcher::SketchObject", "Sketch004")
sketch5.AttachmentSupport = (doc.getObject("YZ_Plane"), [""])
sketch5.MapMode = "FlatFace"
sketch5.AttachmentOffset = App.Placement(V(0, 0, 3.4305 * 25.4), App.Rotation())
sketch5.addGeometry(Part.Circle(V(38.1, 37.2, 0), V(0, 0, 1), 4), False)
sketch5.addGeometry(Part.Circle(V(38.1, 18.1, 0), V(0, 0, 1), 7), False)
sketch5.addGeometry(Part.Circle(V(38.1, -3.5, 0), V(0, 0, 1), 7), False)
sketch5.addGeometry(Part.Circle(V(38.1, -32.7, 0), V(0, 0, 1), 11.1), False)
sketch5.addConstraint(Sketcher.Constraint("Equal", 1, 2))
sketch5.addConstraint(Sketcher.Constraint("Vertical", 0, 3, 1, 3))
sketch5.addConstraint(Sketcher.Constraint("Vertical", 1, 3, 2, 3))
sketch5.addConstraint(Sketcher.Constraint("Vertical", 2, 3, 3, 3))
sketch5.addConstraint(Sketcher.Constraint("Diameter", 1, Q("0.55 in")))
sketch5.addConstraint(Sketcher.Constraint("Diameter", 0, Q("0.315 in")))
sketch5.addConstraint(Sketcher.Constraint("Diameter", 3, Q("0.875 in")))
sketch5.addConstraint(Sketcher.Constraint("DistanceY", 3, 3, 1, 3, Q("2 in")))
sketch5.addConstraint(Sketcher.Constraint("DistanceX", -1, 1, 0, 3, Q("1.5 in")))
sketch5.addConstraint(Sketcher.Constraint("DistanceY", 2, 3, 0, 3, Q("1.6 in")))
sketch5.addConstraint(Sketcher.Constraint("DistanceY", 1, 3, 0, 3, Q("0.75 in")))
sketch5.addConstraint(Sketcher.Constraint("DistanceY", -1, 1, 0, 3, 37.17))
pocket3 = body.newObject("PartDesign::Pocket", "Pocket002")
pocket3.Profile = sketch5
pocket3.Length = Q("0.1 in")
body2 = doc.addObject("PartDesign::Body", "Body001")

# Sketch on XZ plane
sketch6 = body2.newObject("Sketcher::SketchObject", "Sketch005")
sketch6.AttachmentSupport = (doc.getObject("XZ_Plane001"), [""])
sketch6.MapMode = "FlatFace"
sketch6.addGeometry(Part.Circle(V(-76.6, -51.7, 0), V(0, 0, 1), 3), False)
sketch6.addGeometry(Part.Circle(V(-76.6, -51.7, 0), V(0, 0, 1), 1.6), False)
sketch6.addConstraint(Sketcher.Constraint("Coincident", 1, 3, 0, 3))
sketch6.addConstraint(Sketcher.Constraint("Diameter", 0, Q("0.235 in")))
sketch6.addConstraint(Sketcher.Constraint("Diameter", 1, Q("0.125 in")))
sketch6.addConstraint(Sketcher.Constraint("DistanceX", 0, 3, -1, 1, 76.6347))
sketch6.addConstraint(Sketcher.Constraint("DistanceY", 0, 3, -1, 1, 51.73))
pad3 = body2.newObject("PartDesign::Pad", "Pad002")
pad3.Profile = sketch6
pad3.Length = Q("2.4 in")
pad3.Reversed = True
body3 = doc.addObject("PartDesign::Body", "Body002")

# Sketch on XZ plane
sketch7 = body3.newObject("Sketcher::SketchObject", "Sketch006")
sketch7.AttachmentSupport = (doc.getObject("XZ_Plane002"), [""])
sketch7.MapMode = "FlatFace"
sketch7.addGeometry(Part.Circle(V(76.6, -51.7, 0), V(0, 0, 1), 3), False)
sketch7.addGeometry(Part.Circle(V(76.6, -51.7, 0), V(0, 0, 1), 1.6), False)
sketch7.addConstraint(Sketcher.Constraint("Coincident", 1, 3, 0, 3))
sketch7.addConstraint(Sketcher.Constraint("Diameter", 0, Q("0.235 in")))
sketch7.addConstraint(Sketcher.Constraint("Diameter", 1, Q("0.125 in")))
sketch7.addConstraint(Sketcher.Constraint("DistanceX", -1, 1, 0, 3, 76.6347))
sketch7.addConstraint(Sketcher.Constraint("DistanceY", 0, 3, -1, 1, 51.73))
pad4 = body3.newObject("PartDesign::Pad", "Pad003")
pad4.Profile = sketch7
pad4.Length = Q("2.4 in")
pad4.Reversed = True
body4 = doc.addObject("PartDesign::Body", "Body003")

# Sketch on XZ plane
sketch8 = body4.newObject("Sketcher::SketchObject", "Sketch007")
sketch8.AttachmentSupport = (doc.getObject("XZ_Plane003"), [""])
sketch8.MapMode = "FlatFace"
sketch8.addGeometry(Part.Circle(V(76.6, 51.7, 0), V(0, 0, 1), 3), False)
sketch8.addGeometry(Part.Circle(V(76.6, 51.7, 0), V(0, 0, 1), 1.6), False)
sketch8.addConstraint(Sketcher.Constraint("Coincident", 1, 3, 0, 3))
sketch8.addConstraint(Sketcher.Constraint("Diameter", 0, Q("0.235 in")))
sketch8.addConstraint(Sketcher.Constraint("Diameter", 1, Q("0.125 in")))
sketch8.addConstraint(Sketcher.Constraint("DistanceX", -1, 1, 0, 3, 76.6347))
sketch8.addConstraint(Sketcher.Constraint("DistanceY", -1, 1, 0, 3, 51.73))
pad5 = body4.newObject("PartDesign::Pad", "Pad004")
pad5.Profile = sketch8
pad5.Length = Q("2.4 in")
pad5.Reversed = True
body5 = doc.addObject("PartDesign::Body", "Body004")

# Sketch on XZ plane
sketch9 = body5.newObject("Sketcher::SketchObject", "Sketch008")
sketch9.AttachmentSupport = (doc.getObject("XZ_Plane004"), [""])
sketch9.MapMode = "FlatFace"
sketch9.addGeometry(Part.Circle(V(-76.6, 51.7, 0), V(0, 0, 1), 3), False)
sketch9.addGeometry(Part.Circle(V(-76.6, 51.7, 0), V(0, 0, 1), 1.6), False)
sketch9.addConstraint(Sketcher.Constraint("Coincident", 1, 3, 0, 3))
sketch9.addConstraint(Sketcher.Constraint("Diameter", 0, Q("0.235 in")))
sketch9.addConstraint(Sketcher.Constraint("Diameter", 1, Q("0.125 in")))
sketch9.addConstraint(Sketcher.Constraint("DistanceX", 0, 3, -1, 1, 76.6347))
sketch9.addConstraint(Sketcher.Constraint("DistanceY", -1, 1, 0, 3, 51.73))
pad6 = body5.newObject("PartDesign::Pad", "Pad005")
pad6.Profile = sketch9
pad6.Length = Q("2.4 in")
pad6.Reversed = True
body6 = doc.addObject("PartDesign::Body", "Body005")

# Sketch on XZ plane
sketch10 = body6.newObject("Sketcher::SketchObject", "Sketch009")
sketch10.AttachmentSupport = (doc.getObject("XZ_Plane005"), [""])
sketch10.MapMode = "FlatFace"
sketch10.AttachmentOffset = App.Placement(V(0, 0, -2.4 * 25.4), App.Rotation())
sketch10.addGeometry(Part.LineSegment(V(-87.1, -51.7, 0), V(-87.1, 51.7, 0)), False)
sketch10.addGeometry(Part.ArcOfCircle(Part.Circle(V(-76.6, 51.7, 0), V(0, 0, 1), 10.5), math.radians(90), math.radians(180)), False)
sketch10.addGeometry(Part.LineSegment(V(-76.6, 62.2, 0), V(76.6, 62.2, 0)), False)
sketch10.addGeometry(Part.ArcOfCircle(Part.Circle(V(76.6, 51.7, 0), V(0, 0, 1), 10.5), math.radians(0), math.radians(90)), False)
sketch10.addGeometry(Part.LineSegment(V(87.1, 51.7, 0), V(87.1, -51.7, 0)), False)
sketch10.addGeometry(Part.ArcOfCircle(Part.Circle(V(76.6, -51.7, 0), V(0, 0, 1), 10.5), math.radians(-90), math.radians(0)), False)
sketch10.addGeometry(Part.LineSegment(V(76.6, -62.2, 0), V(-76.6, -62.2, 0)), False)
sketch10.addGeometry(Part.ArcOfCircle(Part.Circle(V(-76.6, -51.7, 0), V(0, 0, 1), 10.5), math.radians(-180), math.radians(-90)), False)
sketch10.addGeometry(Part.Circle(V(-76.6, 51.7, 0), V(0, 0, 1), 1.6), False)
sketch10.addGeometry(Part.Circle(V(76.6, 51.7, 0), V(0, 0, 1), 1.6), False)
sketch10.addGeometry(Part.Circle(V(-76.6, -51.7, 0), V(0, 0, 1), 1.6), False)
sketch10.addGeometry(Part.Circle(V(76.6, -51.7, 0), V(0, 0, 1), 1.6), False)
sketch10.addConstraint(Sketcher.Constraint("Tangent", 0, 2, 1, 2))
sketch10.addConstraint(Sketcher.Constraint("Tangent", 1, 1, 2, 1))
sketch10.addConstraint(Sketcher.Constraint("Tangent", 2, 2, 3, 2))
sketch10.addConstraint(Sketcher.Constraint("Tangent", 3, 1, 4, 1))
sketch10.addConstraint(Sketcher.Constraint("Tangent", 4, 2, 5, 2))
sketch10.addConstraint(Sketcher.Constraint("Tangent", 5, 1, 6, 1))
sketch10.addConstraint(Sketcher.Constraint("Tangent", 6, 2, 7, 2))
sketch10.addConstraint(Sketcher.Constraint("Tangent", 7, 1, 0, 1))
sketch10.addConstraint(Sketcher.Constraint("Vertical", 0))
sketch10.addConstraint(Sketcher.Constraint("Horizontal", 2))
sketch10.addConstraint(Sketcher.Constraint("Vertical", 4))
sketch10.addConstraint(Sketcher.Constraint("Horizontal", 6))
sketch10.addConstraint(Sketcher.Constraint("Coincident", 8, 3, 1, 3))
sketch10.addConstraint(Sketcher.Constraint("Coincident", 9, 3, 3, 3))
sketch10.addConstraint(Sketcher.Constraint("Coincident", 10, 3, 7, 3))
sketch10.addConstraint(Sketcher.Constraint("Coincident", 11, 3, 5, 3))
sketch10.addConstraint(Sketcher.Constraint("Equal", 1, 3))
sketch10.addConstraint(Sketcher.Constraint("Equal", 3, 5))
sketch10.addConstraint(Sketcher.Constraint("Equal", 5, 7))
sketch10.addConstraint(Sketcher.Constraint("Equal", 8, 9))
sketch10.addConstraint(Sketcher.Constraint("Equal", 9, 10))
sketch10.addConstraint(Sketcher.Constraint("Equal", 10, 11))
sketch10.addConstraint(Sketcher.Constraint("Symmetric", 1, 3, 5, 3, -1, 1))
sketch10.addConstraint(Sketcher.Constraint("Diameter", 8, Q("0.125 in")))
sketch10.addConstraint(Sketcher.Constraint("DistanceY", -1, 1, 1, 1, Q("2.45 in")))
sketch10.addConstraint(Sketcher.Constraint("Radius", 1, 10.5))
sketch10.addConstraint(Sketcher.Constraint("DistanceX", 2, 1, 2, 2, 153.2694))
pad7 = body6.newObject("PartDesign::Pad", "Pad006")
pad7.Profile = sketch10
pad7.Length = Q("0.195 in")
pad7.Reversed = True

doc.recompute()
